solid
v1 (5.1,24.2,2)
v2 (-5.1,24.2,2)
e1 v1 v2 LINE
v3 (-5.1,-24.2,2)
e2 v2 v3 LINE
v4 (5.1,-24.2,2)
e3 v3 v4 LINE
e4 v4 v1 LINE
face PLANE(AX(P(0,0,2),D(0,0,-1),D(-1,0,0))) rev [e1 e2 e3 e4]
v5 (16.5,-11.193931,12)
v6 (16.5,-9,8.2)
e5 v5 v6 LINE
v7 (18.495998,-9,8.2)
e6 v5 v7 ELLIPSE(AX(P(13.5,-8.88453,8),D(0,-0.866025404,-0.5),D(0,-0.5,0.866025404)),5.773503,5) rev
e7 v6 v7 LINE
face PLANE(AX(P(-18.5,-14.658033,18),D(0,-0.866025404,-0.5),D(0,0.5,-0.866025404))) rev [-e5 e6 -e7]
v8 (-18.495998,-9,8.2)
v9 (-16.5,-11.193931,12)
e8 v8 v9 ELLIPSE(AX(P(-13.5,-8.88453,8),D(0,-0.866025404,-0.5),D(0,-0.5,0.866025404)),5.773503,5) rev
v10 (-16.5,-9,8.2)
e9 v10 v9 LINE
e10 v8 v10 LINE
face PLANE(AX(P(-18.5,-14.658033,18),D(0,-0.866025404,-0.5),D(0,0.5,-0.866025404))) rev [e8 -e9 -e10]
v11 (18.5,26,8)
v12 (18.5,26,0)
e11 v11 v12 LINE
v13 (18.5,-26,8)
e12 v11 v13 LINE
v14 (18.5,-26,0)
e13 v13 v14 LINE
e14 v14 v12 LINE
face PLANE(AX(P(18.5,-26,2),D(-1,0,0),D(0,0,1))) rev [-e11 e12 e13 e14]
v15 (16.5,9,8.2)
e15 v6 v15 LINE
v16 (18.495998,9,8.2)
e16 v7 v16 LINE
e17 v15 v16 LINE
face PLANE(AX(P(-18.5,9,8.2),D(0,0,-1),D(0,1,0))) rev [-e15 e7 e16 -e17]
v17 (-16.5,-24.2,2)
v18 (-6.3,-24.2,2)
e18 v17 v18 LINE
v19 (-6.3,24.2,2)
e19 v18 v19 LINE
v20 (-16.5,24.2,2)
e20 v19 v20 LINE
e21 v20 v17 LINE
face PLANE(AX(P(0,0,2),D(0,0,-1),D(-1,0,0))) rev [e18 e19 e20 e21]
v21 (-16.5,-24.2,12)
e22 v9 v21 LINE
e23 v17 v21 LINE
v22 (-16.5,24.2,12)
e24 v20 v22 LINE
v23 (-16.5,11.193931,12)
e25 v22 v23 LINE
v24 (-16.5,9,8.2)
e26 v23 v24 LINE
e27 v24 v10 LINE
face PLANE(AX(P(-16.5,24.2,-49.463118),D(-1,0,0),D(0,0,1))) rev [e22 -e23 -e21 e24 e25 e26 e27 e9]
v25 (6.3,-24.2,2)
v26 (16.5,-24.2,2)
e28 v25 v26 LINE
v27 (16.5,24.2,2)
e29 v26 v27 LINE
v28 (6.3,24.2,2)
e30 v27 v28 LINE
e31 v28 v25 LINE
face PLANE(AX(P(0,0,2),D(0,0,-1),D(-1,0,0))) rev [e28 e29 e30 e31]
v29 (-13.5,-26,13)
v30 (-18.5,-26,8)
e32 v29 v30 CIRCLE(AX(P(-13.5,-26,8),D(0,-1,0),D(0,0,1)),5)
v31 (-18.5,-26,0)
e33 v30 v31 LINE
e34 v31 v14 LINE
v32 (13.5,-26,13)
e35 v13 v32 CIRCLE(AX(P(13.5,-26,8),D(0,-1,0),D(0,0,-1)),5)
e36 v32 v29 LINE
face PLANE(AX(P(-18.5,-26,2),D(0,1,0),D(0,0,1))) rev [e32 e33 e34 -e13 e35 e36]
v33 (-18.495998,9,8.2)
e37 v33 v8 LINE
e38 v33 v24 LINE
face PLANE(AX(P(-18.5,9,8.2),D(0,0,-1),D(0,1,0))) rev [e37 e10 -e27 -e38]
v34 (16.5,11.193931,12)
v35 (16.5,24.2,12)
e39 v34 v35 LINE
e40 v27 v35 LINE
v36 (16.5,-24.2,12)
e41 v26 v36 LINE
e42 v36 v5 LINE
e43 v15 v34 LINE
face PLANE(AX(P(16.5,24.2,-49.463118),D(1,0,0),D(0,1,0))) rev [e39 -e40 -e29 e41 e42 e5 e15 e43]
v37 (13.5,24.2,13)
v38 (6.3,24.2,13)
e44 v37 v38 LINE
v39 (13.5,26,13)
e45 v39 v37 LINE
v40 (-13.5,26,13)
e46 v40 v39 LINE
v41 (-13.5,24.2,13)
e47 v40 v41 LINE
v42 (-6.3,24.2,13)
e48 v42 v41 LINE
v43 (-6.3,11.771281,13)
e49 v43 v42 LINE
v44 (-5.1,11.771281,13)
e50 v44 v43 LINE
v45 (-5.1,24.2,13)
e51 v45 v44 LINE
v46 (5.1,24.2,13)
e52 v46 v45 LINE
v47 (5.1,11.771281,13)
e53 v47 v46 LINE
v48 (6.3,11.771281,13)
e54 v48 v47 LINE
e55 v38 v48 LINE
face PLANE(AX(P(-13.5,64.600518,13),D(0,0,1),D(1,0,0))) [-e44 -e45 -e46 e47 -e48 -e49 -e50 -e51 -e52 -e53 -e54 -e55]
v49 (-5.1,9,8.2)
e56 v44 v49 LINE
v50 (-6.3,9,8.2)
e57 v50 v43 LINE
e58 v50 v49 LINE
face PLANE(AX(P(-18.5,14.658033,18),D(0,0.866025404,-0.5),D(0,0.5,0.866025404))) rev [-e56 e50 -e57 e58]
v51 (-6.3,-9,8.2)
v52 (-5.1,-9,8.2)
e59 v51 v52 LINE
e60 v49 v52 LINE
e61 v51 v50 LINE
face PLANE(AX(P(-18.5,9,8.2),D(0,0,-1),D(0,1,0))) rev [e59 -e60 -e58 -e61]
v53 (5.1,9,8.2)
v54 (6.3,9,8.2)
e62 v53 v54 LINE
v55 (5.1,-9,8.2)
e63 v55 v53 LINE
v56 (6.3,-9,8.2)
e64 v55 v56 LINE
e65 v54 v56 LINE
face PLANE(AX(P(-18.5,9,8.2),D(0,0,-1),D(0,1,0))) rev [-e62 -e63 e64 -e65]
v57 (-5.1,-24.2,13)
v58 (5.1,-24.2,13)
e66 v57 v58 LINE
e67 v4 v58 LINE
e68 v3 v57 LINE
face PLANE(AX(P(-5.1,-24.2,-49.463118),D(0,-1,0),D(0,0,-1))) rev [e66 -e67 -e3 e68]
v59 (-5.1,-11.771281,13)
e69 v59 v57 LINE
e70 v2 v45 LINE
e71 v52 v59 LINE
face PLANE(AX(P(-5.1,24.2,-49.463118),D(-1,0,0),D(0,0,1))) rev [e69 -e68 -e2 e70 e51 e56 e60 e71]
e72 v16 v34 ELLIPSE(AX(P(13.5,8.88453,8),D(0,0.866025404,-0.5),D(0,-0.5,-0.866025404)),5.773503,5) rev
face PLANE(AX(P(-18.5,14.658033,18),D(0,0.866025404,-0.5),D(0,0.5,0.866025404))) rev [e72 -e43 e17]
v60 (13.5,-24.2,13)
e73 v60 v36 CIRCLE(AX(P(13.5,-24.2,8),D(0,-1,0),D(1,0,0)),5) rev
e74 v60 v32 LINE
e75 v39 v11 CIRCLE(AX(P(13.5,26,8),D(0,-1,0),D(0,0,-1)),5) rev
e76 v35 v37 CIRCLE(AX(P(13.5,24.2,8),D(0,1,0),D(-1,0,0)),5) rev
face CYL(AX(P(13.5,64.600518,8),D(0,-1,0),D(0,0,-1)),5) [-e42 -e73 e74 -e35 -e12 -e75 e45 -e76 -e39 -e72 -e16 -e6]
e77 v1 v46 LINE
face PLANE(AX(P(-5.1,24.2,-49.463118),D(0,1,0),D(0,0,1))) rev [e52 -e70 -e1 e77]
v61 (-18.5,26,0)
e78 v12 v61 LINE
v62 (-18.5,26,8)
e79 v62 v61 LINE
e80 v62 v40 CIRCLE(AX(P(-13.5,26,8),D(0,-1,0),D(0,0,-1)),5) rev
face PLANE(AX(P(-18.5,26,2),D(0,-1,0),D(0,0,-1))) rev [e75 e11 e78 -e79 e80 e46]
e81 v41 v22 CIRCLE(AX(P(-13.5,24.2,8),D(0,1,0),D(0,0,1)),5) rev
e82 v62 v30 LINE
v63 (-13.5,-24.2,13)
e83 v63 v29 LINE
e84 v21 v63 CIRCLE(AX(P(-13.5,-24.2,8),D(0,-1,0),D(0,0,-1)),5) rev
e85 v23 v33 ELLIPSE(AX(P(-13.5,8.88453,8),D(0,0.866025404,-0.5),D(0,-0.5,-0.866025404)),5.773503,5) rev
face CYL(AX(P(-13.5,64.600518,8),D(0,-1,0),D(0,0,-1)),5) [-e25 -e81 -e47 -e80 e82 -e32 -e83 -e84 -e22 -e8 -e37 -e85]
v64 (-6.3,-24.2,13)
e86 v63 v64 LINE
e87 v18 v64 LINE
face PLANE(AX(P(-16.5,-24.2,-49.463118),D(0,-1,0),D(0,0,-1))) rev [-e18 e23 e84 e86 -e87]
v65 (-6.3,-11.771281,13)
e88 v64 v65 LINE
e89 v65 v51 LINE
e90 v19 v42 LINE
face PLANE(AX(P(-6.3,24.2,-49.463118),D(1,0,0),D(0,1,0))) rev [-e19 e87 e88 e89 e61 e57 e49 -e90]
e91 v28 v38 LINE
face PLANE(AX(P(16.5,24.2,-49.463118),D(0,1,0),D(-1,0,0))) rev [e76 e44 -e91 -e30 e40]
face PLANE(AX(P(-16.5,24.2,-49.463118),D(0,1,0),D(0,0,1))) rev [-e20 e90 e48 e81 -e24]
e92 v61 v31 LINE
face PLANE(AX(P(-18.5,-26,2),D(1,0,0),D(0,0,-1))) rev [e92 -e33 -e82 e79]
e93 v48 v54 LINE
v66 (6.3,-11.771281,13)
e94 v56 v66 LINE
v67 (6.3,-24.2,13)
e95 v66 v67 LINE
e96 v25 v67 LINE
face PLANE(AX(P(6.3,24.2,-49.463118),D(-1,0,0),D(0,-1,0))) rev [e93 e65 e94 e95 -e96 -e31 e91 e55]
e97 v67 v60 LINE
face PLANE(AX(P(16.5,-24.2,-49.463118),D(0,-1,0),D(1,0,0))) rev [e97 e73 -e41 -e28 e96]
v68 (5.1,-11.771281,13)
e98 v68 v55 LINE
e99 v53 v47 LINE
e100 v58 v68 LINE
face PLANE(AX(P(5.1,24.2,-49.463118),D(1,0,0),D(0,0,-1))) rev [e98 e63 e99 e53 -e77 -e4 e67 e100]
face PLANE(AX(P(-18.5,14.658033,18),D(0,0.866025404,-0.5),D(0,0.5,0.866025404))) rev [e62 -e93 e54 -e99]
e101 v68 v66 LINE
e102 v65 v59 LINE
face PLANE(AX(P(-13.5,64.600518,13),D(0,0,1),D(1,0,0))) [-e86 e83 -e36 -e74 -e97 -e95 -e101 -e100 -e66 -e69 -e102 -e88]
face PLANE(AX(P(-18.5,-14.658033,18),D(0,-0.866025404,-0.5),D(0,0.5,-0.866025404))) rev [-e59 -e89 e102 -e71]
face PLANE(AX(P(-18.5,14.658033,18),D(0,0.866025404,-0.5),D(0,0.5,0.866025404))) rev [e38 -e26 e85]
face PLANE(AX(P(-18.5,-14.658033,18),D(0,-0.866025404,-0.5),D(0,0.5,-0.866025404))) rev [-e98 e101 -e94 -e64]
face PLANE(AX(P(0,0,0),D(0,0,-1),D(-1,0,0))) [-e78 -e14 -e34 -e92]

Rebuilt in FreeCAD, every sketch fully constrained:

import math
import FreeCAD as App
import Part
import Sketcher

V = App.Vector
Q = App.Units.Quantity

doc = App.newDocument("Part")
body = doc.addObject("PartDesign::Body", "Body")

# Sketch on XY plane
sketch1 = body.newObject("Sketcher::SketchObject", "Sketch")
sketch1.AttachmentSupport = (doc.getObject("XY_Plane"), [""])
sketch1.MapMode = "FlatFace"
sketch1.addGeometry([
    Part.LineSegment(V(-18.5, 26, 0), V(-18.5, -26, 0)),
    Part.LineSegment(V(-18.5, -26, 0), V(18.5, -26, 0)),
    Part.LineSegment(V(18.5, -26, 0), V(18.5, 26, 0)),
    Part.LineSegment(V(18.5, 26, 0), V(-18.5, 26, 0)),
], False)
sketch1.addConstraint([
    Sketcher.Constraint("Coincident", 0, 2, 1, 1),
    Sketcher.Constraint("Coincident", 1, 2, 2, 1),
    Sketcher.Constraint("Coincident", 2, 2, 3, 1),
    Sketcher.Constraint("Coincident", 3, 2, 0, 1),
    Sketcher.Constraint("Vertical", 0),
    Sketcher.Constraint("Horizontal", 1),
    Sketcher.Constraint("Vertical", 2),
    Sketcher.Constraint("Horizontal", 3),
    Sketcher.Constraint("Symmetric", 0, 2, 2, 2, -1, 1),
    Sketcher.Constraint("DistanceX", 1, 1, 1, 2, 37.0),
    Sketcher.Constraint("DistanceY", 0, 2, 0, 1, 52.0),
])
pad1 = body.newObject("PartDesign::Pad", "Pad")
pad1.Profile = sketch1
pad1.Length = 2

# Sketch on XZ plane
sketch2 = body.newObject("Sketcher::SketchObject", "Sketch001")
sketch2.AttachmentSupport = (doc.getObject("XZ_Plane"), [""])
sketch2.MapMode = "FlatFace"
sketch2.AttachmentOffset = App.Placement(V(0, 0, 26), App.Rotation())
sketch2.addGeometry([
    Part.LineSegment(V(13.5, 13, 0), V(-13.5, 13, 0)),  # 0
    Part.ArcOfCircle(Part.Circle(V(-13.5, 8, 0), V(0, 0, 1), 5), math.radians(90), math.radians(180)),  # 1
    Part.LineSegment(V(-18.5, 8, 0), V(-18.5, 2, 0)),  # 2
    Part.LineSegment(V(-18.5, 2, 0), V(18.5, 2, 0)),  # 3
    Part.LineSegment(V(18.5, 2, 0), V(18.5, 8, 0)),  # 4
    Part.ArcOfCircle(Part.Circle(V(13.5, 8, 0), V(0, 0, 1), 5), math.radians(0), math.radians(90)),  # 5
], False)
sketch2.addConstraint([
    Sketcher.Constraint("Tangent", 0, 2, 1, 1),
    Sketcher.Constraint("Tangent", 1, 2, 2, 1),
    Sketcher.Constraint("Coincident", 2, 2, 3, 1),
    Sketcher.Constraint("Coincident", 3, 2, 4, 1),
    Sketcher.Constraint("Tangent", 4, 2, 5, 1),
    Sketcher.Constraint("Tangent", 5, 2, 0, 1),
    Sketcher.Constraint("Horizontal", 0),
    Sketcher.Constraint("Vertical", 2),
    Sketcher.Constraint("Horizontal", 3),
    Sketcher.Constraint("Vertical", 4),
    Sketcher.Constraint("Equal", 1, 5),
    Sketcher.Constraint("Radius", 1, 5.0),
    Sketcher.Constraint("DistanceX", 0, 2, 0, 1, 27.0),
    Sketcher.Constraint("DistanceY", 2, 2, 2, 1, 6.0),
    Sketcher.Constraint("DistanceY", -1, 1, 1, 3, 8.0),
    Sketcher.Constraint("DistanceX", 1, 3, -1, 1, 13.5),
])
pad2 = body.newObject("PartDesign::Pad", "Pad001")
pad2.Profile = sketch2
pad2.Length = 52
pad2.Reversed = True

# Sketch on XY plane
sketch3 = body.newObject("Sketcher::SketchObject", "Sketch002")
sketch3.AttachmentSupport = (doc.getObject("XY_Plane"), [""])
sketch3.MapMode = "FlatFace"
sketch3.AttachmentOffset = App.Placement(V(0, 0, 13), App.Rotation())
sketch3.addGeometry([
    Part.LineSegment(V(-5.1, 24.2, 0), V(-5.1, -24.2, 0)),  # 0
    Part.LineSegment(V(-5.1, -24.2, 0), V(5.1, -24.2, 0)),  # 1
    Part.LineSegment(V(5.1, -24.2, 0), V(5.1, 24.2, 0)),  # 2
    Part.LineSegment(V(5.1, 24.2, 0), V(-5.1, 24.2, 0)),  # 3
    Part.LineSegment(V(6.3, 24.2, 0), V(6.3, -24.2, 0)),  # 4
    Part.LineSegment(V(6.3, -24.2, 0), V(16.5, -24.2, 0)),  # 5
    Part.LineSegment(V(16.5, -24.2, 0), V(16.5, 24.2, 0)),  # 6
    Part.LineSegment(V(16.5, 24.2, 0), V(6.3, 24.2, 0)),  # 7
    Part.LineSegment(V(-16.5, 24.2, 0), V(-16.5, -24.2, 0)),  # 8
    Part.LineSegment(V(-16.5, -24.2, 0), V(-6.3, -24.2, 0)),  # 9
    Part.LineSegment(V(-6.3, -24.2, 0), V(-6.3, 24.2, 0)),  # 10
    Part.LineSegment(V(-6.3, 24.2, 0), V(-16.5, 24.2, 0)),  # 11
], False)
sketch3.addConstraint([
    Sketcher.Constraint("Coincident", 0, 2, 1, 1),
    Sketcher.Constraint("Coincident", 1, 2, 2, 1),
    Sketcher.Constraint("Coincident", 2, 2, 3, 1),
    Sketcher.Constraint("Coincident", 3, 2, 0, 1),
    Sketcher.Constraint("Coincident", 4, 2, 5, 1),
    Sketcher.Constraint("Coincident", 5, 2, 6, 1),
    Sketcher.Constraint("Coincident", 6, 2, 7, 1),
    Sketcher.Constraint("Coincident", 7, 2, 4, 1),
    Sketcher.Constraint("Coincident", 8, 2, 9, 1),
    Sketcher.Constraint("Coincident", 9, 2, 10, 1),
    Sketcher.Constraint("Coincident", 10, 2, 11, 1),
    Sketcher.Constraint("Coincident", 11, 2, 8, 1),
    Sketcher.Constraint("Vertical", 0),
    Sketcher.Constraint("Horizontal", 1),
    Sketcher.Constraint("Vertical", 2),
    Sketcher.Constraint("Horizontal", 3),
    Sketcher.Constraint("Vertical", 4),
    Sketcher.Constraint("Horizontal", 5),
    Sketcher.Constraint("Vertical", 6),
    Sketcher.Constraint("Horizontal", 7),
    Sketcher.Constraint("Vertical", 8),
    Sketcher.Constraint("Horizontal", 9),
    Sketcher.Constraint("Vertical", 10),
    Sketcher.Constraint("Horizontal", 11),
    Sketcher.Constraint("Symmetric", 0, 2, 2, 2, -1, 1),
    Sketcher.Constraint("Symmetric", 6, 2, 8, 2, -1, 1),
    Sketcher.Constraint("Symmetric", 4, 2, 10, 2, -1, 1),
    Sketcher.Constraint("Horizontal", 1, 2, 4, 2),
    Sketcher.Constraint("Horizontal", 3, 2, 6, 2),
    Sketcher.Constraint("Equal", 3, 5),
    Sketcher.Constraint("DistanceX", 1, 1, 1, 2, 10.2),
    Sketcher.Constraint("DistanceY", 0, 2, 0, 1, 48.4),
    Sketcher.Constraint("DistanceX", 8, 2, 5, 2, 33.0),
])
pocket1 = body.newObject("PartDesign::Pocket", "Pocket")
pocket1.Profile = sketch3
pocket1.Length = 11

# Sketch on YZ plane
sketch4 = body.newObject("Sketcher::SketchObject", "Sketch003")
sketch4.AttachmentSupport = (doc.getObject("YZ_Plane"), [""])
sketch4.MapMode = "FlatFace"
sketch4.addGeometry([
    Part.LineSegment(V(14.658033, 18, 0), V(-14.658033, 18, 0)),
    Part.LineSegment(V(-14.658033, 18, 0), V(-9, 8.2, 0)),
    Part.LineSegment(V(-9, 8.2, 0), V(9, 8.2, 0)),
    Part.LineSegment(V(9, 8.2, 0), V(14.658033, 18, 0)),
], False)
sketch4.addConstraint([
    Sketcher.Constraint("Coincident", 0, 2, 1, 1),
    Sketcher.Constraint("Coincident", 1, 2, 2, 1),
    Sketcher.Constraint("Coincident", 2, 2, 3, 1),
    Sketcher.Constraint("Coincident", 3, 2, 0, 1),
    Sketcher.Constraint("Horizontal", 0),
    Sketcher.Constraint("Horizontal", 2),
    Sketcher.Constraint("Equal", 1, 3),
    Sketcher.Constraint("DistanceX", 2, 1, 2, 2, 18.0),
    Sketcher.Constraint("Angle", 1, Q("-60 deg")),
    Sketcher.Constraint("DistanceY", -1, 1, 0, 2, 18.0),
    Sketcher.Constraint("DistanceX", 1, 2, -1, 1, 9.0),
    Sketcher.Constraint("DistanceY", -1, 1, 1, 2, 8.2),
])
pocket2 = body.newObject("PartDesign::Pocket", "Pocket001")
pocket2.Profile = sketch4
pocket2.Type = "ThroughAll"
pocket2.Midplane = True

doc.recompute()
